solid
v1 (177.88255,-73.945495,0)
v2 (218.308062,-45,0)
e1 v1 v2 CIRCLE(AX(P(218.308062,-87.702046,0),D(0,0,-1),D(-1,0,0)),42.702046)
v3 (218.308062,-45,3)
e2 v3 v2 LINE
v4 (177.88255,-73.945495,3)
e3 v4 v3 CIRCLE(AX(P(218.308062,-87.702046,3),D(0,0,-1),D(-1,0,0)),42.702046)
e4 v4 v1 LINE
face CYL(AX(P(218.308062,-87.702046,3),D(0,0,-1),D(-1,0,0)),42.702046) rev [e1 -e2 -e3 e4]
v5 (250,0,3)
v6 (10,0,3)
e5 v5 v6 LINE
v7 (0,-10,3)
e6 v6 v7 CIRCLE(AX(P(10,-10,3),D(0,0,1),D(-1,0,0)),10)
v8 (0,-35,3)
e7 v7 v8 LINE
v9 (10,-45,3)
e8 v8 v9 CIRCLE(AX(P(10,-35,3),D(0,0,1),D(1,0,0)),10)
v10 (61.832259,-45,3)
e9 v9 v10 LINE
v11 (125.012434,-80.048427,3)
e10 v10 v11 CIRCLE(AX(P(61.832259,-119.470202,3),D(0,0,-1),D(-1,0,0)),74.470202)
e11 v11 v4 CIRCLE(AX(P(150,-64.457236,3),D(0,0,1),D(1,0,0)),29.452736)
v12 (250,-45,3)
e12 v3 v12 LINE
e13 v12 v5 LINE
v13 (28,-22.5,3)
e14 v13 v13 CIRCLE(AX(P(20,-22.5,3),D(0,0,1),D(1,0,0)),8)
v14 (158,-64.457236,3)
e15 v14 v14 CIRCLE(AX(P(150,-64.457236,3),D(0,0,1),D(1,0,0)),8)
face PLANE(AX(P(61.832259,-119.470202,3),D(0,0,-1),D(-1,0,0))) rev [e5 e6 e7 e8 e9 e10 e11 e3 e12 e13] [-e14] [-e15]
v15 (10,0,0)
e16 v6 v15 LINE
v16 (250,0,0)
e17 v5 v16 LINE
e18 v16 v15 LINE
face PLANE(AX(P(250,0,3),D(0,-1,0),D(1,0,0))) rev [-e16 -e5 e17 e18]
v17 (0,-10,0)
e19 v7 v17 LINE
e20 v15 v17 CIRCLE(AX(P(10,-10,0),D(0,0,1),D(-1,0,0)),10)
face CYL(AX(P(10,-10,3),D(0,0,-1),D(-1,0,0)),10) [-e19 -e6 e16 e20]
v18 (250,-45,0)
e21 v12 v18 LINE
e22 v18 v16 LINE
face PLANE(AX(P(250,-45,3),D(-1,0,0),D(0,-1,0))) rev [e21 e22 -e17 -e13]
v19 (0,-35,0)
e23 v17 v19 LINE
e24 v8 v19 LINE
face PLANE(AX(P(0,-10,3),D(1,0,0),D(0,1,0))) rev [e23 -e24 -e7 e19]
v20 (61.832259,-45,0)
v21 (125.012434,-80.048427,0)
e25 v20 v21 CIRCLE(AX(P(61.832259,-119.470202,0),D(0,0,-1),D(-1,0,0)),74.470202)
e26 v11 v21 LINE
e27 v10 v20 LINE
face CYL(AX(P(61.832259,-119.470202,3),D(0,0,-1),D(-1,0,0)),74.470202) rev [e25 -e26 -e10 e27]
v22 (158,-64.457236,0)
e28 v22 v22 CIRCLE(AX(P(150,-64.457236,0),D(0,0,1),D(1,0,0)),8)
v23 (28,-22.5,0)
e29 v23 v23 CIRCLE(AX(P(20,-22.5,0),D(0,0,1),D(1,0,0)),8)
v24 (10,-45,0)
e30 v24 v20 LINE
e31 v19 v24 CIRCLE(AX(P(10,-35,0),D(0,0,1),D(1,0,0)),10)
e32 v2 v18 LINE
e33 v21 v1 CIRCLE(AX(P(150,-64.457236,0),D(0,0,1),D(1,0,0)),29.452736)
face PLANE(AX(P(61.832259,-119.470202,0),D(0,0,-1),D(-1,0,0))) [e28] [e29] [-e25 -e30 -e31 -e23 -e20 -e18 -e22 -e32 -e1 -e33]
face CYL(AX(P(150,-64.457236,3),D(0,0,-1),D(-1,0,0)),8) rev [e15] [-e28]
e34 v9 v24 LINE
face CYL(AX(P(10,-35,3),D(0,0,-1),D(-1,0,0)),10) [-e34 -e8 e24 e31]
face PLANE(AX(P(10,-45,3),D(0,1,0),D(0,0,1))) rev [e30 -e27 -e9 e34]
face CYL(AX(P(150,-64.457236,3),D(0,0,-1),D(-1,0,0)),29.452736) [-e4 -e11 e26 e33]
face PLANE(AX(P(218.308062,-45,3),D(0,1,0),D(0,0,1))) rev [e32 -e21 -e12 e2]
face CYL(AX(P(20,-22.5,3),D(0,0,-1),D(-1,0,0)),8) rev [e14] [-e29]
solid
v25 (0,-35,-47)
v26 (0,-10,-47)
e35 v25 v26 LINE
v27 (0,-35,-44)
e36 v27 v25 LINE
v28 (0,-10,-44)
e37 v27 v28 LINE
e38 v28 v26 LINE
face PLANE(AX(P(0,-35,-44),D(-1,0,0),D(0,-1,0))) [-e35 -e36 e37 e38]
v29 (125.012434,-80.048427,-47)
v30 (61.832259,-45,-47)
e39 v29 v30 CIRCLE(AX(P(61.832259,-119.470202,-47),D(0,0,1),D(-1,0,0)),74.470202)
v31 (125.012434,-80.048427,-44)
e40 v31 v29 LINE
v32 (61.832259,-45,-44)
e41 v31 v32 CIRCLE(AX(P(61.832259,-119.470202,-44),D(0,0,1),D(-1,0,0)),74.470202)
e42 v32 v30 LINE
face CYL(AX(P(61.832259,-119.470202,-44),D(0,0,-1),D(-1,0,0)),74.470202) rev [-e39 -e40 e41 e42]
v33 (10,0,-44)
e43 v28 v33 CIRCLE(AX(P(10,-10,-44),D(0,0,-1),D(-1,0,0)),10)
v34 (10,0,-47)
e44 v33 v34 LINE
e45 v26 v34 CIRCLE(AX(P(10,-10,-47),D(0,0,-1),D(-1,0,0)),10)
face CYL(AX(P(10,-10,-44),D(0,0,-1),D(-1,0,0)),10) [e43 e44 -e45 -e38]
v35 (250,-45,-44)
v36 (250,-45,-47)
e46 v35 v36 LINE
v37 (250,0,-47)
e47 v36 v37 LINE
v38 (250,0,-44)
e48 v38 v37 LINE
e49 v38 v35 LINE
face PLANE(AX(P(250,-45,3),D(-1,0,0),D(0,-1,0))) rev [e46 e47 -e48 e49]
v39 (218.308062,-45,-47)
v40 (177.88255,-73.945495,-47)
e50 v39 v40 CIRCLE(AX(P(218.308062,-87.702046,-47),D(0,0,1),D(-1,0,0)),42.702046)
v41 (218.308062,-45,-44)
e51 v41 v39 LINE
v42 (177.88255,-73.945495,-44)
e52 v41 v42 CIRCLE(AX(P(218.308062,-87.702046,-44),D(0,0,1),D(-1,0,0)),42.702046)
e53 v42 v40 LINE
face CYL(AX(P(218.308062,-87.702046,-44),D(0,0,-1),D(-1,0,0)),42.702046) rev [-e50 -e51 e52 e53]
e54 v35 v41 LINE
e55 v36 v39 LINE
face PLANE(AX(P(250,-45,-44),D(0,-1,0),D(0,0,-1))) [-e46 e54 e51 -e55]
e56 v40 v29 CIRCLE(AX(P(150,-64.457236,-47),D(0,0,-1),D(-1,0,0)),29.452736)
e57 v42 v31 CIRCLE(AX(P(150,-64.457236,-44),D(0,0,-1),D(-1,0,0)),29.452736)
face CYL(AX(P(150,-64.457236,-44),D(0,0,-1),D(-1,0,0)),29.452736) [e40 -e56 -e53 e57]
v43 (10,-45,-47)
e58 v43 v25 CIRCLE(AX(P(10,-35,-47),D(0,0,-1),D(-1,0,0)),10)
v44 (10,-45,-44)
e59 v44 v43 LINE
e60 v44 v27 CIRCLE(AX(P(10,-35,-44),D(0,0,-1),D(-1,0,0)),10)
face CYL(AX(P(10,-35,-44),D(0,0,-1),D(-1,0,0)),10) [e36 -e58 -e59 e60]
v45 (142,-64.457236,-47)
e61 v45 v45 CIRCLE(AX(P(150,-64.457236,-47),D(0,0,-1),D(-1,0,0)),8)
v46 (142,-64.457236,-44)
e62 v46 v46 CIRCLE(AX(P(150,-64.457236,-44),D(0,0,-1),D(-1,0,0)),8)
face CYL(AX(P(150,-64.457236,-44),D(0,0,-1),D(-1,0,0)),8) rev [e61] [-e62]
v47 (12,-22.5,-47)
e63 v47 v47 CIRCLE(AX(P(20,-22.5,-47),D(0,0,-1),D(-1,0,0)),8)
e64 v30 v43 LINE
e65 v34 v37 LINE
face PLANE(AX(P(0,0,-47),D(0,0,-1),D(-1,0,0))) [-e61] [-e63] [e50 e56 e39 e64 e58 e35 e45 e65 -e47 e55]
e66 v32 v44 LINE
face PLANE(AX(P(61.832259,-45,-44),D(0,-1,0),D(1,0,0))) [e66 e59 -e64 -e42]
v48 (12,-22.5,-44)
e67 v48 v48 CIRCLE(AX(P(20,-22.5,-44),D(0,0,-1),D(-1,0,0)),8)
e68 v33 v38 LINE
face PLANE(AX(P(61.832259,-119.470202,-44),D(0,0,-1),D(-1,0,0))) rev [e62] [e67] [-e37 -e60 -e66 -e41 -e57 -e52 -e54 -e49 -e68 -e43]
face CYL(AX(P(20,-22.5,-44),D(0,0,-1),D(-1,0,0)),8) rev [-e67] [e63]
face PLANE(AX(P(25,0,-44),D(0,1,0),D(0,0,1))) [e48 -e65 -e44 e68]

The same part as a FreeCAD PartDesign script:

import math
import FreeCAD as App
import Part
import Sketcher
from FreeCAD import Vector

doc = App.newDocument("Part")
body = doc.addObject("PartDesign::Body", "Body")
body.AllowCompound = True

# Sketch on XY plane
sketch1 = doc.addObject("Sketcher::SketchObject", "Sketch")
body.addObject(sketch1)
sketch1.AttachmentSupport = (doc.XY_Plane, [""])
sketch1.MapMode = "FlatFace"
sketch1.addGeometry([
    Part.LineSegment(Vector(0, -10, 0), Vector(0, -35, 0)),  # 0
    Part.ArcOfCircle(Part.Circle(Vector(10, -35, 0), Vector(0, 0, 1), 10), math.radians(180), math.radians(270)),  # 1
    Part.LineSegment(Vector(10, -45, 0), Vector(62, -45, 0)),  # 2
    Part.ArcOfCircle(Part.Circle(Vector(62, -119, 0), Vector(0, 0, 1), 74), math.radians(32), math.radians(90)),  # 3
    Part.ArcOfCircle(Part.Circle(Vector(150, -64, 0), Vector(0, 0, 1), 29), math.radians(-148), math.radians(-19)),  # 4
    Part.ArcOfCircle(Part.Circle(Vector(218, -88, 0), Vector(0, 0, 1), 43), math.radians(90), math.radians(161)),  # 5
    Part.LineSegment(Vector(218, -45, 0), Vector(250, -45, 0)),  # 6
    Part.LineSegment(Vector(250, -45, 0), Vector(250, 0, 0)),  # 7
    Part.LineSegment(Vector(250, 0, 0), Vector(10, 0, 0)),  # 8
    Part.ArcOfCircle(Part.Circle(Vector(10, -10, 0), Vector(0, 0, 1), 10), math.radians(90), math.radians(180)),  # 9
    Part.Circle(Vector(150, -64, 0), Vector(0, 0, 1), 8),  # 10
    Part.Circle(Vector(20, -22, 0), Vector(0, 0, 1), 8),  # 11
], False)
sketch1.addConstraint([
    Sketcher.Constraint("Tangent", 0, 2, 1, 1),
    Sketcher.Constraint("Tangent", 1, 2, 2, 1),
    Sketcher.Constraint("Tangent", 2, 2, 3, 2),
    Sketcher.Constraint("Tangent", 3, 1, 4, 1),
    Sketcher.Constraint("Tangent", 4, 2, 5, 2),
    Sketcher.Constraint("Tangent", 5, 1, 6, 1),
    Sketcher.Constraint("Coincident", 6, 2, 7, 1),
    Sketcher.Constraint("Coincident", 7, 2, 8, 1),
    Sketcher.Constraint("Tangent", 8, 2, 9, 1),
    Sketcher.Constraint("Tangent", 9, 2, 0, 1),
    Sketcher.Constraint("Vertical", 0),
    Sketcher.Constraint("Horizontal", 2),
    Sketcher.Constraint("Horizontal", 6),
    Sketcher.Constraint("Vertical", 7),
    Sketcher.Constraint("Horizontal", 8),
    Sketcher.Constraint("Coincident", 10, 3, 4, 3),
    Sketcher.Constraint("Equal", 1, 9),
    Sketcher.Constraint("Equal", 10, 11),
    Sketcher.Constraint("PointOnObject", 0, 2, -2),
    Sketcher.Constraint("PointOnObject", 7, 2, -1),
    Sketcher.Constraint("Horizontal", 2, 2, 5, 1),
    Sketcher.Constraint("Diameter", 10, 16.0),
    Sketcher.Constraint("Radius", 1, 10.0),
    Sketcher.Constraint("DistanceX", 8, 2, 8, 1, 240.0),
    Sketcher.Constraint("DistanceY", 0, 2, 0, 1, 25.0),
    Sketcher.Constraint("DistanceX", -1, 1, 4, 3, 150.0),
    Sketcher.Constraint("DistanceX", -1, 1, 11, 3, 20.0),
    Sketcher.Constraint("DistanceY", 11, 3, -1, 1, 22.5),
    Sketcher.Constraint("Radius", 3, 74.470202),
    Sketcher.Constraint("Radius", 4, 29.452736),
    Sketcher.Constraint("Radius", 5, 42.702046),
    Sketcher.Constraint("DistanceX", 2, 1, 2, 2, 51.832259),
])
pad1 = doc.addObject("PartDesign::Pad", "Pad")
body.addObject(pad1)
pad1.Profile = sketch1
pad1.Length = 3

# Sketch on XY plane
sketch2 = doc.addObject("Sketcher::SketchObject", "Sketch001")
body.addObject(sketch2)
sketch2.AttachmentSupport = (doc.XY_Plane, [""])
sketch2.MapMode = "FlatFace"
sketch2.AttachmentOffset = App.Placement(Vector(0, 0, 3), App.Rotation())
sketch2.addGeometry([
    Part.LineSegment(Vector(25, 3, 0), Vector(25, 0, 0)),
    Part.LineSegment(Vector(25, 0, 0), Vector(250, 0, 0)),
    Part.LineSegment(Vector(250, 0, 0), Vector(250, 3, 0)),
    Part.LineSegment(Vector(250, 3, 0), Vector(25, 3, 0)),
], False)
sketch2.addConstraint([
    Sketcher.Constraint("Coincident", 0, 2, 1, 1),
    Sketcher.Constraint("Coincident", 1, 2, 2, 1),
    Sketcher.Constraint("Coincident", 2, 2, 3, 1),
    Sketcher.Constraint("Coincident", 3, 2, 0, 1),
    Sketcher.Constraint("Vertical", 0),
    Sketcher.Constraint("Horizontal", 1),
    Sketcher.Constraint("Vertical", 2),
    Sketcher.Constraint("Horizontal", 3),
    Sketcher.Constraint("PointOnObject", 0, 2, -1),
    Sketcher.Constraint("DistanceX", 1, 1, 1, 2, 225.0),
    Sketcher.Constraint("DistanceY", 0, 2, 0, 1, 3.0),
    Sketcher.Constraint("DistanceX", -1, 1, 0, 2, 25.0),
])
pad2 = doc.addObject("PartDesign::Pad", "Pad001")
body.addObject(pad2)
pad2.Profile = sketch2
pad2.Length = 50
pad2.Reversed = True

# Sketch on XY plane
sketch3 = doc.addObject("Sketcher::SketchObject", "Sketch002")
body.addObject(sketch3)
sketch3.AttachmentSupport = (doc.XY_Plane, [""])
sketch3.MapMode = "FlatFace"
sketch3.AttachmentOffset = App.Placement(Vector(0, 0, -47), App.Rotation())
sketch3.addGeometry([
    Part.LineSegment(Vector(62, -45, 0), Vector(10, -45, 0)),  # 0
    Part.ArcOfCircle(Part.Circle(Vector(10, -35, 0), Vector(0, 0, 1), 10), math.radians(180), math.radians(270)),  # 1
    Part.LineSegment(Vector(0, -35, 0), Vector(0, -10, 0)),  # 2
    Part.ArcOfCircle(Part.Circle(Vector(10, -10, 0), Vector(0, 0, 1), 10), math.radians(90), math.radians(180)),  # 3
    Part.LineSegment(Vector(10, 0, 0), Vector(250, 0, 0)),  # 4
    Part.LineSegment(Vector(250, 0, 0), Vector(250, -45, 0)),  # 5
    Part.LineSegment(Vector(250, -45, 0), Vector(218, -45, 0)),  # 6
    Part.ArcOfCircle(Part.Circle(Vector(218, -88, 0), Vector(0, 0, 1), 43), math.radians(90), math.radians(161)),  # 7
    Part.ArcOfCircle(Part.Circle(Vector(150, -64, 0), Vector(0, 0, 1), 29), math.radians(-148), math.radians(-19)),  # 8
    Part.ArcOfCircle(Part.Circle(Vector(62, -119, 0), Vector(0, 0, 1), 74), math.radians(32), math.radians(90)),  # 9
    Part.Circle(Vector(150, -64, 0), Vector(0, 0, 1), 8),  # 10
    Part.Circle(Vector(20, -22, 0), Vector(0, 0, 1), 8),  # 11
], False)
sketch3.addConstraint([
    Sketcher.Constraint("Tangent", 0, 2, 1, 2),
    Sketcher.Constraint("Tangent", 1, 1, 2, 1),
    Sketcher.Constraint("Tangent", 2, 2, 3, 2),
    Sketcher.Constraint("Tangent", 3, 1, 4, 1),
    Sketcher.Constraint("Coincident", 4, 2, 5, 1),
    Sketcher.Constraint("Coincident", 5, 2, 6, 1),
    Sketcher.Constraint("Tangent", 6, 2, 7, 1),
    Sketcher.Constraint("Tangent", 7, 2, 8, 2),
    Sketcher.Constraint("Tangent", 8, 1, 9, 1),
    Sketcher.Constraint("Tangent", 9, 2, 0, 1),
    Sketcher.Constraint("Horizontal", 0),
    Sketcher.Constraint("Vertical", 2),
    Sketcher.Constraint("Horizontal", 4),
    Sketcher.Constraint("Vertical", 5),
    Sketcher.Constraint("Horizontal", 6),
    Sketcher.Constraint("Coincident", 10, 3, 8, 3),
    Sketcher.Constraint("Equal", 1, 3),
    Sketcher.Constraint("Equal", 10, 11),
    Sketcher.Constraint("PointOnObject", 1, 1, -2),
    Sketcher.Constraint("PointOnObject", 3, 1, -1),
    Sketcher.Constraint("Horizontal", 0, 2, 5, 2),
    Sketcher.Constraint("Diameter", 10, 16.0),
    Sketcher.Constraint("Radius", 1, 10.0),
    Sketcher.Constraint("DistanceX", 4, 1, 4, 2, 240.0),
    Sketcher.Constraint("DistanceY", 2, 1, 2, 2, 25.0),
    Sketcher.Constraint("DistanceX", -1, 1, 8, 3, 150.0),
    Sketcher.Constraint("DistanceX", -1, 1, 11, 3, 20.0),
    Sketcher.Constraint("DistanceY", 11, 3, -1, 1, 22.5),
    Sketcher.Constraint("Radius", 9, 74.470202),
    Sketcher.Constraint("Radius", 7, 42.702046),
    Sketcher.Constraint("Radius", 8, 29.452736),
    Sketcher.Constraint("DistanceX", 0, 2, 0, 1, 51.832259),
])
pad3 = doc.addObject("PartDesign::Pad", "Pad002")
body.addObject(pad3)
pad3.Profile = sketch3
pad3.Length = 3

# Sketch on XZ plane
sketch4 = doc.addObject("Sketcher::SketchObject", "Sketch003")
body.addObject(sketch4)
sketch4.AttachmentSupport = (doc.XZ_Plane, [""])
sketch4.MapMode = "FlatFace"
sketch4.AttachmentOffset = App.Placement(Vector(0, 0, -3), App.Rotation())
sketch4.addGeometry([
    Part.Circle(Vector(130, -34, 0), Vector(0, 0, 1), 2),  # 0
    Part.Circle(Vector(130, -10, 0), Vector(0, 0, 1), 2),  # 1
    Part.Circle(Vector(143, -34, 0), Vector(0, 0, 1), 2),  # 2
    Part.Circle(Vector(143, -10, 0), Vector(0, 0, 1), 2),  # 3
    Part.Circle(Vector(156, -34, 0), Vector(0, 0, 1), 2),  # 4
    Part.Circle(Vector(156, -10, 0), Vector(0, 0, 1), 2),  # 5
], False)
sketch4.addConstraint([
    Sketcher.Constraint("Equal", 0, 1),
    Sketcher.Constraint("Equal", 1, 2),
    Sketcher.Constraint("Equal", 2, 3),
    Sketcher.Constraint("Equal", 3, 4),
    Sketcher.Constraint("Equal", 4, 5),
    Sketcher.Constraint("Horizontal", 0, 3, 2, 3),
    Sketcher.Constraint("Horizontal", 1, 3, 3, 3),
    Sketcher.Constraint("Horizontal", 2, 3, 4, 3),
    Sketcher.Constraint("Horizontal", 3, 3, 5, 3),
    Sketcher.Constraint("Vertical", 0, 3, 1, 3),
    Sketcher.Constraint("Vertical", 2, 3, 3, 3),
    Sketcher.Constraint("Vertical", 4, 3, 5, 3),
    Sketcher.Constraint("Diameter", 0, 4.0),
    Sketcher.Constraint("DistanceX", -1, 1, 0, 3, 130.0),
    Sketcher.Constraint("DistanceY", 0, 3, -1, 1, 34.0),
    Sketcher.Constraint("DistanceY", 1, 3, -1, 1, 10.0),
    Sketcher.Constraint("DistanceX", -1, 1, 2, 3, 143.0),
    Sketcher.Constraint("DistanceX", -1, 1, 4, 3, 156.0),
])
pocket1 = doc.addObject("PartDesign::Pocket", "Pocket")
body.addObject(pocket1)
pocket1.Profile = sketch4
pocket1.Length = 3
pocket1.Reversed = True

# Sketch on XZ plane
sketch5 = doc.addObject("Sketcher::SketchObject", "Sketch004")
body.addObject(sketch5)
sketch5.AttachmentSupport = (doc.XZ_Plane, [""])
sketch5.MapMode = "FlatFace"
sketch5.AttachmentOffset = App.Placement(Vector(0, 0, -3), App.Rotation())
sketch5.addGeometry([
    Part.LineSegment(Vector(25, -47, 0), Vector(25, 3, 0)),
    Part.LineSegment(Vector(25, 3, 0), Vector(250, 3, 0)),
    Part.LineSegment(Vector(250, 3, 0), Vector(250, -47, 0)),
    Part.LineSegment(Vector(250, -47, 0), Vector(25, -47, 0)),
], False)
sketch5.addConstraint([
    Sketcher.Constraint("Coincident", 0, 2, 1, 1),
    Sketcher.Constraint("Coincident", 1, 2, 2, 1),
    Sketcher.Constraint("Coincident", 2, 2, 3, 1),
    Sketcher.Constraint("Coincident", 3, 2, 0, 1),
    Sketcher.Constraint("Vertical", 0),
    Sketcher.Constraint("Horizontal", 1),
    Sketcher.Constraint("Vertical", 2),
    Sketcher.Constraint("Horizontal", 3),
    Sketcher.Constraint("DistanceX", 1, 1, 1, 2, 225.0),
    Sketcher.Constraint("DistanceX", -1, 1, 0, 2, 25.0),
    Sketcher.Constraint("DistanceY", 2, 2, -1, 1, 47.0),
    Sketcher.Constraint("DistanceY", 0, 1, 0, 2, 50.324775),
])
pocket2 = doc.addObject("PartDesign::Pocket", "Pocket001")
body.addObject(pocket2)
pocket2.Profile = sketch5
pocket2.Length = 3
pocket2.Reversed = True

doc.recompute()
